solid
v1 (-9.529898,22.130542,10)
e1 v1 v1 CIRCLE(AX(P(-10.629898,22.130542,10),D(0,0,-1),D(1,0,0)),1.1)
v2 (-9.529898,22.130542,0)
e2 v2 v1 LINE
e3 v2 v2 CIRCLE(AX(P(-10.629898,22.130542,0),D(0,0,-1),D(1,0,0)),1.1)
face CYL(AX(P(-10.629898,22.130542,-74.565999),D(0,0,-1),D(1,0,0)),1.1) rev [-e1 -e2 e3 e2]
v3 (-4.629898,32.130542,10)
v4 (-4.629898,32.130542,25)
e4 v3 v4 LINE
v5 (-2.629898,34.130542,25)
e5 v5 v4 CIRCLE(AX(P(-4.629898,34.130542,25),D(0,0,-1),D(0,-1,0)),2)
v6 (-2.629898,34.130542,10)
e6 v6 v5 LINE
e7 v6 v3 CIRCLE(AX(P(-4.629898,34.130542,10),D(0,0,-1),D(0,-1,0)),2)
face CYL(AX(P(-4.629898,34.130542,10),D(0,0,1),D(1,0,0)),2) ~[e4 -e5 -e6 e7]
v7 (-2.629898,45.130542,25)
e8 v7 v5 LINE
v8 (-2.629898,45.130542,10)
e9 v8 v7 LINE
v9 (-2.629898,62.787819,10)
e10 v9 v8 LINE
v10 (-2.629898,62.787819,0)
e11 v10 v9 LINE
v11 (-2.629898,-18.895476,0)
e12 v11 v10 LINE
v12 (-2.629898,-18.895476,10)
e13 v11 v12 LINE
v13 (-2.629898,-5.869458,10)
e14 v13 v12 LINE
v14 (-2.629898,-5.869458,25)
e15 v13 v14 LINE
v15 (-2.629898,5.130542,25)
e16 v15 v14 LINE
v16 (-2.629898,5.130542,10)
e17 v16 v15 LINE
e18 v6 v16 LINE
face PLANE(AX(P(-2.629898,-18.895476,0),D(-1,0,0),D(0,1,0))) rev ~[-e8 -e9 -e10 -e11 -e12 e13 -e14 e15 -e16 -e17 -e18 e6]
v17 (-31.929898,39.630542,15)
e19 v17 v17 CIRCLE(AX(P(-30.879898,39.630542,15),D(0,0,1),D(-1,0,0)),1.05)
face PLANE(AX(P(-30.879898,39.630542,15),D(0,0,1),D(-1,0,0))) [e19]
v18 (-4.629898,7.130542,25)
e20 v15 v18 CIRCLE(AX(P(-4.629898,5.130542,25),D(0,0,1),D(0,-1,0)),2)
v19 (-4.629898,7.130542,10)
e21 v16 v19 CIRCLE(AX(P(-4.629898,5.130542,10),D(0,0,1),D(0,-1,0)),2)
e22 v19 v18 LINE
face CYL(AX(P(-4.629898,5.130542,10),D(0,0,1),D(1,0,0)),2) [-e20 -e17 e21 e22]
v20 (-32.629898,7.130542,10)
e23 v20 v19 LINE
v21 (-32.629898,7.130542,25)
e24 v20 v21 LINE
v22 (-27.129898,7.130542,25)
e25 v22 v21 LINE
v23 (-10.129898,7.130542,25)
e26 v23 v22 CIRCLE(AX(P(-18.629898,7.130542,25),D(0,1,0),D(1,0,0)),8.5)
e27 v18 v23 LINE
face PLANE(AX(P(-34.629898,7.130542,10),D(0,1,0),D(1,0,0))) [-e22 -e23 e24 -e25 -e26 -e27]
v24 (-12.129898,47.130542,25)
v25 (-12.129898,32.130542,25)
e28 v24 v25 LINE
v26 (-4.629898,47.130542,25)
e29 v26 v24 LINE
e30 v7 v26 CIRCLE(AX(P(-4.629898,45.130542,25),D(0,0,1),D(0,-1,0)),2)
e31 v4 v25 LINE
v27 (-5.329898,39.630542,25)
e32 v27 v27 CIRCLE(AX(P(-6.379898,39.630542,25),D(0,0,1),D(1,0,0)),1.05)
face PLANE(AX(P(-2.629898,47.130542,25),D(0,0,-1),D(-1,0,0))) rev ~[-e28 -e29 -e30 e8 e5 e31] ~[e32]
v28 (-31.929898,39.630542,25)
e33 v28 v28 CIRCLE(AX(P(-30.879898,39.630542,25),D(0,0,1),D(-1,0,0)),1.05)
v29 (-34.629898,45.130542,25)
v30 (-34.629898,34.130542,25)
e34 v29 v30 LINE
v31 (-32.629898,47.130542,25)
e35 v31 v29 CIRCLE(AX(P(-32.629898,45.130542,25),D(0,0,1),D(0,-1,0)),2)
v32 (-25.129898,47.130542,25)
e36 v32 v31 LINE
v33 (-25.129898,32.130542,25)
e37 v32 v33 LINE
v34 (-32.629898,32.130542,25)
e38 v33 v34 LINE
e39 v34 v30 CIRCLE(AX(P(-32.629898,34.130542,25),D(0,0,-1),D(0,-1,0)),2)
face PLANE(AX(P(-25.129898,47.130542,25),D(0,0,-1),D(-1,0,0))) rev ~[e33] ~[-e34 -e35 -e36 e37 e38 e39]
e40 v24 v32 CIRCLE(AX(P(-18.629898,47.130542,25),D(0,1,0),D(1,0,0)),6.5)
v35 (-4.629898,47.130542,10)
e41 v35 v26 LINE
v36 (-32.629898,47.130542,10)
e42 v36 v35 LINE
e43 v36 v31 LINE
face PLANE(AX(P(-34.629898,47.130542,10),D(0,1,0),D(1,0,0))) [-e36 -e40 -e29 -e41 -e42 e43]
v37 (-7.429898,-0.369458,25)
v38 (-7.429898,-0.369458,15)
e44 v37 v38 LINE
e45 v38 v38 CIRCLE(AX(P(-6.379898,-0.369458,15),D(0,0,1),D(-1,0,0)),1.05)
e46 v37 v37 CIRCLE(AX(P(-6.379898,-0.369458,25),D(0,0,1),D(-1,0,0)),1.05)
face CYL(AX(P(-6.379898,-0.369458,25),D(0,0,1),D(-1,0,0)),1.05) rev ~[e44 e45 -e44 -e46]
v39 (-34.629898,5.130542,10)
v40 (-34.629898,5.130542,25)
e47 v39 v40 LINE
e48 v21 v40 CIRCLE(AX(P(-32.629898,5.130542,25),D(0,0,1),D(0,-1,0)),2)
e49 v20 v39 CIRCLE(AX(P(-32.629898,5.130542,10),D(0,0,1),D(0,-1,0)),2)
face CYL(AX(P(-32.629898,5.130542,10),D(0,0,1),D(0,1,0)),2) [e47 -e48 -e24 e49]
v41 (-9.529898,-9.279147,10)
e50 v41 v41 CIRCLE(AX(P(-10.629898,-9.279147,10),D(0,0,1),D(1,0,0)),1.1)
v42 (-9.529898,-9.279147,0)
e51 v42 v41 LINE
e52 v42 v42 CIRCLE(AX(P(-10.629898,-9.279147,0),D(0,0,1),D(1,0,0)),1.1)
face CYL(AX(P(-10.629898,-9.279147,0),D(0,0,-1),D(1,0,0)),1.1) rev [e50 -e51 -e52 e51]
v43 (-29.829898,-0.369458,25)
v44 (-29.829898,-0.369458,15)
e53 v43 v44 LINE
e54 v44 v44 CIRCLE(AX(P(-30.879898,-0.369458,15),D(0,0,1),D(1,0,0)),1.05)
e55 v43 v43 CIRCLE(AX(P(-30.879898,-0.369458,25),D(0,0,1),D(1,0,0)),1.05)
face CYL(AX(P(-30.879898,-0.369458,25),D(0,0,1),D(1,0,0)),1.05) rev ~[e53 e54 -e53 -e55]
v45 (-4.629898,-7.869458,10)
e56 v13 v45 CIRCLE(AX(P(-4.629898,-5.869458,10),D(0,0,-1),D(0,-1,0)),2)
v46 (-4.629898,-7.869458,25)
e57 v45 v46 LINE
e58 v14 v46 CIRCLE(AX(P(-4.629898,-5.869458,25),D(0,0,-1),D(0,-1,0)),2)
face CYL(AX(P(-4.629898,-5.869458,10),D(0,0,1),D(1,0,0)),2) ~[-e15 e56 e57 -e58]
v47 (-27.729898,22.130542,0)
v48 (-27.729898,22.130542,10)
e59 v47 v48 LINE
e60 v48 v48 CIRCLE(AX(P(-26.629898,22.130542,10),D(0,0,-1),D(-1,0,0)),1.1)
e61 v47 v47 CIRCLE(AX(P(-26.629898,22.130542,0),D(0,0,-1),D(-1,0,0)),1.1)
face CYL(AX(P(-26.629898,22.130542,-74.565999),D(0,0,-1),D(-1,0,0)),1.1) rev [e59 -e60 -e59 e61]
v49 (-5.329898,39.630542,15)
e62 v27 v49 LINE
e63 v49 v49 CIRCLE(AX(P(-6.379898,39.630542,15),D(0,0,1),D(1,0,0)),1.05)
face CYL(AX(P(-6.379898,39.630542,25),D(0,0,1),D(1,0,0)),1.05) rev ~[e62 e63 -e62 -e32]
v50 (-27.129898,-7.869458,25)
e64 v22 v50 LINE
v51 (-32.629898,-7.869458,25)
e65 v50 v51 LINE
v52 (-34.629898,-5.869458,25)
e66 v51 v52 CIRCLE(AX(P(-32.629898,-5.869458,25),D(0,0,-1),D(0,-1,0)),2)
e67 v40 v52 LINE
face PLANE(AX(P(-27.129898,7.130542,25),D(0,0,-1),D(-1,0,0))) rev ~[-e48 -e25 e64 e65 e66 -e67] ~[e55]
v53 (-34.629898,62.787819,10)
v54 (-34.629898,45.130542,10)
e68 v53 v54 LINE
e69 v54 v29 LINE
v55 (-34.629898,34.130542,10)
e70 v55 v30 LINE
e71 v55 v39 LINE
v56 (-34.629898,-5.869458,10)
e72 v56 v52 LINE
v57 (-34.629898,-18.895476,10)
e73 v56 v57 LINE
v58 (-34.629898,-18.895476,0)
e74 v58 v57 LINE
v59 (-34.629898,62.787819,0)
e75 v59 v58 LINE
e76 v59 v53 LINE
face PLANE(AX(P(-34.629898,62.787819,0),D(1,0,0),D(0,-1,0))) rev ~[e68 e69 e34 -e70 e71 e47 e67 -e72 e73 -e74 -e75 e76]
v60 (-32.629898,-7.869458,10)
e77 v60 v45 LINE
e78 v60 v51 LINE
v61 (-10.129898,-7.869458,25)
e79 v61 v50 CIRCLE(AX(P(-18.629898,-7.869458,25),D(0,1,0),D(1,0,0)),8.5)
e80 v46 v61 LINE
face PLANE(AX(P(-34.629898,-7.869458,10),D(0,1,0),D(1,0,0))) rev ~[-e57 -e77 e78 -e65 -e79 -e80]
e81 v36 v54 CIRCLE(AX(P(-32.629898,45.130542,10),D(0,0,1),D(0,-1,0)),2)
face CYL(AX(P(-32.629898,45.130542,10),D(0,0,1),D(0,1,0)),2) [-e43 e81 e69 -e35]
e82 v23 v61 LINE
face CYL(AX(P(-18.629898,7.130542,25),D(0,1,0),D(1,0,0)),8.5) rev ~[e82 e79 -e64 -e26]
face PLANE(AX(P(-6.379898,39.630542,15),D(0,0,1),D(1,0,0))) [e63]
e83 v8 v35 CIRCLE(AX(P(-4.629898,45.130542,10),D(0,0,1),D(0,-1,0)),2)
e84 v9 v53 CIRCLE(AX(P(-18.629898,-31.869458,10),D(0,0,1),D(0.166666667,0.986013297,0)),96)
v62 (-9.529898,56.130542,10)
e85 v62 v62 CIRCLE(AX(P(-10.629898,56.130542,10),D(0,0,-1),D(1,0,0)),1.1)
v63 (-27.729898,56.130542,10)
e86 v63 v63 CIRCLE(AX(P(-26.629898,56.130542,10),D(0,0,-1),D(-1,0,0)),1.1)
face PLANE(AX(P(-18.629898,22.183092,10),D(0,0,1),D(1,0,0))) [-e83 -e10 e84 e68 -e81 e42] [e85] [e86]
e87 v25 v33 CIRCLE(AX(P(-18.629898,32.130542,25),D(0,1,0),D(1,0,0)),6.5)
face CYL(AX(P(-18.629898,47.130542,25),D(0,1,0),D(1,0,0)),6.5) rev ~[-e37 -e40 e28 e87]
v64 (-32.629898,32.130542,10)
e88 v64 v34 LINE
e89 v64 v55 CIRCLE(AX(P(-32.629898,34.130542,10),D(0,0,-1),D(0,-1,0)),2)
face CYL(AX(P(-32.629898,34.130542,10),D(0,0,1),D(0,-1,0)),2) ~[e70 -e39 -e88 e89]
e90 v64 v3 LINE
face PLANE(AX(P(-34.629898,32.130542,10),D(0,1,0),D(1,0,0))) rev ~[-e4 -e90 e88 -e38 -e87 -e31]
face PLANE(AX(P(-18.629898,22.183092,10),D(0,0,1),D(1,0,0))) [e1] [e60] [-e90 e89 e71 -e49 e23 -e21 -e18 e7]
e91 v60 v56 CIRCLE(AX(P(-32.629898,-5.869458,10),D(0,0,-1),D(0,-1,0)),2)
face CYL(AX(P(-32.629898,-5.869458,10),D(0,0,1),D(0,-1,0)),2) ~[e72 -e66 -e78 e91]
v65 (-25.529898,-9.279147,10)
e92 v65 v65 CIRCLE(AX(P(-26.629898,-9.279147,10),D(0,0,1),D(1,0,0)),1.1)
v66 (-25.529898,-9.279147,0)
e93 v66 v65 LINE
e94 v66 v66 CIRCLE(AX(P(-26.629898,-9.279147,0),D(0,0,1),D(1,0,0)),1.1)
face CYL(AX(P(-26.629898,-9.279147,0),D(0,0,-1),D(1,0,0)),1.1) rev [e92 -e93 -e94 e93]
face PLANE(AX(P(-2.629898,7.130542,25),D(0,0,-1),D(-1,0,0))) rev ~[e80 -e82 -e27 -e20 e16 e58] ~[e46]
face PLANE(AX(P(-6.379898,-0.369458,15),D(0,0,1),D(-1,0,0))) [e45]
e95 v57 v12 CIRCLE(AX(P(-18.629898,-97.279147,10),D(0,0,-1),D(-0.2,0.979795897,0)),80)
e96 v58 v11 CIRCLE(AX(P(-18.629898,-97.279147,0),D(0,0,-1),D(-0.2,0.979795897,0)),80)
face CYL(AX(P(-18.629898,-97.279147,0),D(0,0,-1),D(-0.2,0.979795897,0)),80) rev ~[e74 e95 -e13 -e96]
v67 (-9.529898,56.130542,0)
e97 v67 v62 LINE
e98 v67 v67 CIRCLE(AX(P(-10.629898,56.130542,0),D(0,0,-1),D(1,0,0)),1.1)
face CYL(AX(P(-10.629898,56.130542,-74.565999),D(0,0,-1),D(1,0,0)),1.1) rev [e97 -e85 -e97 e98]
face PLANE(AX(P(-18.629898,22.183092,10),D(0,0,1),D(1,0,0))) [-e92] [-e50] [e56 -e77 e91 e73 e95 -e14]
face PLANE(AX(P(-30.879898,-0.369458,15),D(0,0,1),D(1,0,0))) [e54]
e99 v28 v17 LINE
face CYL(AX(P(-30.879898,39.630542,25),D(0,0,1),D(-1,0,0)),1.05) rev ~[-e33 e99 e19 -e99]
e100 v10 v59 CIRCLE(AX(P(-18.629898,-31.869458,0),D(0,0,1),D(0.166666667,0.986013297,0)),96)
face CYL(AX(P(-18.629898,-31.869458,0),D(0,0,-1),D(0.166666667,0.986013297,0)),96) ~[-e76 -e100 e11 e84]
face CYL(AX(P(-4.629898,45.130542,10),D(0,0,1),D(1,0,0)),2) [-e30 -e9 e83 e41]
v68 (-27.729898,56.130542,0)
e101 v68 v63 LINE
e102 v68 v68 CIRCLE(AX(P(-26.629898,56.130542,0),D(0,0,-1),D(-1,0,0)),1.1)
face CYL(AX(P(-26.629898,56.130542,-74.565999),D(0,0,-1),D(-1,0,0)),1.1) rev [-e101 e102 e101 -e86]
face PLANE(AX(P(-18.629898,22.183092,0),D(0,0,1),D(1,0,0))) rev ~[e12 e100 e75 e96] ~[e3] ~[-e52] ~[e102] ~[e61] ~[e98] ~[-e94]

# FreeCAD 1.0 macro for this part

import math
import FreeCAD as App
import Part
import Sketcher
from FreeCAD import Vector


def edges_at(feature, points):
    """Names of the edges that pass closest to the given points."""
    edges = feature.Shape.Edges
    near = lambda p: min(range(len(edges)), key=lambda i: edges[i].distToShape(Part.Vertex(*p))[0])
    return sorted({f"Edge{near(p) + 1}" for p in points})

doc = App.newDocument("Part")
body = doc.addObject("PartDesign::Body", "Body")

sketch1 = doc.addObject("Sketcher::SketchObject", "Sketch")
body.addObject(sketch1)
sketch1.AttachmentSupport = (doc.XY_Plane, [""])
sketch1.MapMode = "FlatFace"
sketch1.addGeometry(Part.LineSegment(Vector(-2.629898, -18.895476, 0), Vector(-2.629898, 62.787819, 0)), False)
sketch1.addGeometry(Part.ArcOfCircle(Part.Circle(Vector(-18.629898, -31.869458, 0), Vector(0, 0, 1), 96), math.radians(80.405932), math.radians(99.594068)), False)
sketch1.addGeometry(Part.LineSegment(Vector(-34.629898, 62.787819, 0), Vector(-34.629898, -18.895476, 0)), False)
sketch1.addGeometry(Part.ArcOfCircle(Part.Circle(Vector(-18.629898, -97.279147, 0), Vector(0, 0, 1), 80), math.radians(78.463041), math.radians(101.536959)), False)
sketch1.addGeometry(Part.Circle(Vector(-10.629898, -9.279147, 0), Vector(0, 0, 1), 1.1), False)
sketch1.addGeometry(Part.Circle(Vector(-26.629898, -9.279147, 0), Vector(0, 0, 1), 1.1), False)
sketch1.addConstraint(Sketcher.Constraint("Coincident", 0, 2, 1, 1))
sketch1.addConstraint(Sketcher.Constraint("Coincident", 1, 2, 2, 1))
sketch1.addConstraint(Sketcher.Constraint("Coincident", 2, 2, 3, 2))
sketch1.addConstraint(Sketcher.Constraint("Coincident", 3, 1, 0, 1))
sketch1.addConstraint(Sketcher.Constraint("Vertical", 0))
sketch1.addConstraint(Sketcher.Constraint("Vertical", 2))
sketch1.addConstraint(Sketcher.Constraint("Equal", 4, 5))
sketch1.addConstraint(Sketcher.Constraint("Horizontal", 4, 3, 5, 3))
sketch1.addConstraint(Sketcher.Constraint("Horizontal", 0, 2, 1, 2))
sketch1.addConstraint(Sketcher.Constraint("Horizontal", 2, 2, 3, 1))
sketch1.addConstraint(Sketcher.Constraint("Radius", 1, 96.0))
sketch1.addConstraint(Sketcher.Constraint("Radius", 3, 80.0))
sketch1.addConstraint(Sketcher.Constraint("Diameter", 4, 2.2))
sketch1.addConstraint(Sketcher.Constraint("DistanceX", 1, 3, 4, 3, 8.0))
sketch1.addConstraint(Sketcher.Constraint("DistanceY", 3, 3, 4, 3, 88.0))
sketch1.addConstraint(Sketcher.Constraint("DistanceX", 5, 3, 4, 3, 16.0))
sketch1.addConstraint(Sketcher.Constraint("DistanceX", 4, 3, 0, 2, 8.0))
sketch1.addConstraint(Sketcher.Constraint("DistanceX", 1, 3, -1, 1, 18.629898))
sketch1.addConstraint(Sketcher.Constraint("DistanceY", 0, 1, 0, 2, 81.683294))
sketch1.addConstraint(Sketcher.Constraint("DistanceY", 1, 3, -1, 1, 31.869458))
pad1 = doc.addObject("PartDesign::Pad", "Pad")
body.addObject(pad1)
pad1.Profile = sketch1
pad1.Length = 10

sketch2 = doc.addObject("Sketcher::SketchObject", "Sketch001")
body.addObject(sketch2)
sketch2.AttachmentSupport = (doc.XY_Plane, [""])
sketch2.MapMode = "FlatFace"
sketch2.addGeometry(Part.Circle(Vector(-10.629898, 56.130542, 0), Vector(0, 0, 1), 1.1), False)
sketch2.addGeometry(Part.Circle(Vector(-26.629898, 56.130542, 0), Vector(0, 0, 1), 1.1), False)
sketch2.addGeometry(Part.Circle(Vector(-10.629898, 22.130542, 0), Vector(0, 0, 1), 1.1), False)
sketch2.addGeometry(Part.Circle(Vector(-26.629898, 22.130542, 0), Vector(0, 0, 1), 1.1), False)
sketch2.addConstraint(Sketcher.Constraint("Equal", 0, 1))
sketch2.addConstraint(Sketcher.Constraint("Equal", 1, 2))
sketch2.addConstraint(Sketcher.Constraint("Equal", 2, 3))
sketch2.addConstraint(Sketcher.Constraint("Horizontal", 0, 3, 1, 3))
sketch2.addConstraint(Sketcher.Constraint("Horizontal", 2, 3, 3, 3))
sketch2.addConstraint(Sketcher.Constraint("Vertical", 0, 3, 2, 3))
sketch2.addConstraint(Sketcher.Constraint("Vertical", 1, 3, 3, 3))
sketch2.addConstraint(Sketcher.Constraint("Diameter", 0, 2.2))
sketch2.addConstraint(Sketcher.Constraint("DistanceX", 1, 3, 0, 3, 16.0))
sketch2.addConstraint(Sketcher.Constraint("DistanceY", 2, 3, 0, 3, 34.0))
sketch2.addConstraint(Sketcher.Constraint("DistanceX", 0, 3, -1, 1, 10.629898))
sketch2.addConstraint(Sketcher.Constraint("DistanceY", -1, 1, 0, 3, 56.130542))
pocket1 = doc.addObject("PartDesign::Pocket", "Pocket")
body.addObject(pocket1)
pocket1.Profile = sketch2
pocket1.Type = "ThroughAll"
pocket1.Midplane = True

sketch3 = doc.addObject("Sketcher::SketchObject", "Sketch002")
body.addObject(sketch3)
sketch3.AttachmentSupport = (doc.XY_Plane, [""])
sketch3.MapMode = "FlatFace"
sketch3.AttachmentOffset = App.Placement(Vector(0, 0, 10), App.Rotation())
sketch3.addGeometry(Part.LineSegment(Vector(-34.629898, 7.130542, 0), Vector(-34.629898, -7.869458, 0)), False)
sketch3.addGeometry(Part.LineSegment(Vector(-34.629898, -7.869458, 0), Vector(-2.629898, -7.869458, 0)), False)
sketch3.addGeometry(Part.LineSegment(Vector(-2.629898, -7.869458, 0), Vector(-2.629898, 7.130542, 0)), False)
sketch3.addGeometry(Part.LineSegment(Vector(-2.629898, 7.130542, 0), Vector(-34.629898, 7.130542, 0)), False)
sketch3.addGeometry(Part.LineSegment(Vector(-34.629898, 47.130542, 0), Vector(-34.629898, 32.130542, 0)), False)
sketch3.addGeometry(Part.LineSegment(Vector(-34.629898, 32.130542, 0), Vector(-2.629898, 32.130542, 0)), False)
sketch3.addGeometry(Part.LineSegment(Vector(-2.629898, 32.130542, 0), Vector(-2.629898, 47.130542, 0)), False)
sketch3.addGeometry(Part.LineSegment(Vector(-2.629898, 47.130542, 0), Vector(-34.629898, 47.130542, 0)), False)
sketch3.addConstraint(Sketcher.Constraint("Coincident", 0, 2, 1, 1))
sketch3.addConstraint(Sketcher.Constraint("Coincident", 1, 2, 2, 1))
sketch3.addConstraint(Sketcher.Constraint("Coincident", 2, 2, 3, 1))
sketch3.addConstraint(Sketcher.Constraint("Coincident", 3, 2, 0, 1))
sketch3.addConstraint(Sketcher.Constraint("Coincident", 4, 2, 5, 1))
sketch3.addConstraint(Sketcher.Constraint("Coincident", 5, 2, 6, 1))
sketch3.addConstraint(Sketcher.Constraint("Coincident", 6, 2, 7, 1))
sketch3.addConstraint(Sketcher.Constraint("Coincident", 7, 2, 4, 1))
sketch3.addConstraint(Sketcher.Constraint("Vertical", 0))
sketch3.addConstraint(Sketcher.Constraint("Horizontal", 1))
sketch3.addConstraint(Sketcher.Constraint("Vertical", 2))
sketch3.addConstraint(Sketcher.Constraint("Horizontal", 3))
sketch3.addConstraint(Sketcher.Constraint("Vertical", 4))
sketch3.addConstraint(Sketcher.Constraint("Horizontal", 5))
sketch3.addConstraint(Sketcher.Constraint("Vertical", 6))
sketch3.addConstraint(Sketcher.Constraint("Horizontal", 7))
sketch3.addConstraint(Sketcher.Constraint("Vertical", 3, 2, 4, 2))
sketch3.addConstraint(Sketcher.Constraint("Vertical", 2, 2, 5, 2))
sketch3.addConstraint(Sketcher.Constraint("Equal", 2, 4))
sketch3.addConstraint(Sketcher.Constraint("DistanceX", 1, 1, 1, 2, 32.0))
sketch3.addConstraint(Sketcher.Constraint("DistanceY", 0, 2, 0, 1, 15.0))
sketch3.addConstraint(Sketcher.Constraint("DistanceY", 3, 2, 4, 2, 25.0))
sketch3.addConstraint(Sketcher.Constraint("DistanceX", 0, 2, -1, 1, 34.629898))
sketch3.addConstraint(Sketcher.Constraint("DistanceY", 0, 2, -1, 1, 7.869458))
pad2 = doc.addObject("PartDesign::Pad", "Pad001")
body.addObject(pad2)
pad2.Profile = sketch3
pad2.Length = 30

sketch4 = doc.addObject("Sketcher::SketchObject", "Sketch003")
body.addObject(sketch4)
sketch4.AttachmentSupport = (doc.XZ_Plane, [""])
sketch4.MapMode = "FlatFace"
sketch4.AttachmentOffset = App.Placement(Vector(0, 0, -47.130542), App.Rotation())
sketch4.addGeometry(Part.LineSegment(Vector(-2.629898, 40, 0), Vector(-2.629898, 25, 0)), False)
sketch4.addGeometry(Part.LineSegment(Vector(-2.629898, 25, 0), Vector(-12.129898, 25, 0)), False)
sketch4.addGeometry(Part.ArcOfCircle(Part.Circle(Vector(-18.629898, 25, 0), Vector(0, 0, 1), 6.5), math.radians(180), math.radians(360)), False)
sketch4.addGeometry(Part.LineSegment(Vector(-25.129898, 25, 0), Vector(-34.629898, 25, 0)), False)
sketch4.addGeometry(Part.LineSegment(Vector(-34.629898, 25, 0), Vector(-34.629898, 40, 0)), False)
sketch4.addGeometry(Part.LineSegment(Vector(-34.629898, 40, 0), Vector(-2.629898, 40, 0)), False)
sketch4.addConstraint(Sketcher.Constraint("Coincident", 0, 2, 1, 1))
sketch4.addConstraint(Sketcher.Constraint("Coincident", 1, 2, 2, 2))
sketch4.addConstraint(Sketcher.Constraint("Coincident", 2, 1, 3, 1))
sketch4.addConstraint(Sketcher.Constraint("Coincident", 3, 2, 4, 1))
sketch4.addConstraint(Sketcher.Constraint("Coincident", 4, 2, 5, 1))
sketch4.addConstraint(Sketcher.Constraint("Coincident", 5, 2, 0, 1))
sketch4.addConstraint(Sketcher.Constraint("Vertical", 0))
sketch4.addConstraint(Sketcher.Constraint("Horizontal", 1))
sketch4.addConstraint(Sketcher.Constraint("Horizontal", 3))
sketch4.addConstraint(Sketcher.Constraint("Vertical", 4))
sketch4.addConstraint(Sketcher.Constraint("Horizontal", 5))
sketch4.addConstraint(Sketcher.Constraint("Horizontal", 2, 3, 0, 2))
sketch4.addConstraint(Sketcher.Constraint("Horizontal", 1, 2, 2, 1))
sketch4.addConstraint(Sketcher.Constraint("Equal", 1, 3))
sketch4.addConstraint(Sketcher.Constraint("Radius", 2, 6.5))
sketch4.addConstraint(Sketcher.Constraint("DistanceX", 5, 1, 5, 2, 32.0))
sketch4.addConstraint(Sketcher.Constraint("DistanceY", 0, 2, 0, 1, 15.0))
sketch4.addConstraint(Sketcher.Constraint("DistanceY", -1, 1, 2, 3, 25.0))
sketch4.addConstraint(Sketcher.Constraint("DistanceX", 2, 3, -1, 1, 18.629898))
pocket2 = doc.addObject("PartDesign::Pocket", "Pocket001")
body.addObject(pocket2)
pocket2.Profile = sketch4
pocket2.Length = 16
pocket2.Reversed = True

sketch5 = doc.addObject("Sketcher::SketchObject", "Sketch004")
body.addObject(sketch5)
sketch5.AttachmentSupport = (doc.XZ_Plane, [""])
sketch5.MapMode = "FlatFace"
sketch5.AttachmentOffset = App.Placement(Vector(0, 0, -7.130542), App.Rotation())
sketch5.addGeometry(Part.LineSegment(Vector(-2.629898, 25, 0), Vector(-10.129898, 25, 0)), False)
sketch5.addGeometry(Part.ArcOfCircle(Part.Circle(Vector(-18.629898, 25, 0), Vector(0, 0, 1), 8.5), math.radians(180), math.radians(360)), False)
sketch5.addGeometry(Part.LineSegment(Vector(-27.129898, 25, 0), Vector(-34.629898, 25, 0)), False)
sketch5.addGeometry(Part.LineSegment(Vector(-34.629898, 25, 0), Vector(-34.629898, 40, 0)), False)
sketch5.addGeometry(Part.LineSegment(Vector(-34.629898, 40, 0), Vector(-2.629898, 40, 0)), False)
sketch5.addGeometry(Part.LineSegment(Vector(-2.629898, 40, 0), Vector(-2.629898, 25, 0)), False)
sketch5.addConstraint(Sketcher.Constraint("Coincident", 0, 2, 1, 2))
sketch5.addConstraint(Sketcher.Constraint("Coincident", 1, 1, 2, 1))
sketch5.addConstraint(Sketcher.Constraint("Coincident", 2, 2, 3, 1))
sketch5.addConstraint(Sketcher.Constraint("Coincident", 3, 2, 4, 1))
sketch5.addConstraint(Sketcher.Constraint("Coincident", 4, 2, 5, 1))
sketch5.addConstraint(Sketcher.Constraint("Coincident", 5, 2, 0, 1))
sketch5.addConstraint(Sketcher.Constraint("Horizontal", 0))
sketch5.addConstraint(Sketcher.Constraint("Horizontal", 2))
sketch5.addConstraint(Sketcher.Constraint("Vertical", 3))
sketch5.addConstraint(Sketcher.Constraint("Horizontal", 4))
sketch5.addConstraint(Sketcher.Constraint("Vertical", 5))
sketch5.addConstraint(Sketcher.Constraint("Horizontal", 1, 3, 0, 2))
sketch5.addConstraint(Sketcher.Constraint("Horizontal", 0, 2, 1, 1))
sketch5.addConstraint(Sketcher.Constraint("Equal", 0, 2))
sketch5.addConstraint(Sketcher.Constraint("Radius", 1, 8.5))
sketch5.addConstraint(Sketcher.Constraint("DistanceX", 4, 1, 4, 2, 32.0))
sketch5.addConstraint(Sketcher.Constraint("DistanceY", 3, 1, 3, 2, 15.0))
sketch5.addConstraint(Sketcher.Constraint("DistanceY", -1, 1, 1, 3, 25.0))
sketch5.addConstraint(Sketcher.Constraint("DistanceX", 1, 3, -1, 1, 18.629898))
pocket3 = doc.addObject("PartDesign::Pocket", "Pocket002")
body.addObject(pocket3)
pocket3.Profile = sketch5
pocket3.Length = 22
pocket3.Reversed = True

sketch6 = doc.addObject("Sketcher::SketchObject", "Sketch005")
body.addObject(sketch6)
sketch6.AttachmentSupport = (doc.XY_Plane, [""])
sketch6.MapMode = "FlatFace"
sketch6.AttachmentOffset = App.Placement(Vector(0, 0, 25), App.Rotation())
sketch6.addGeometry(Part.Circle(Vector(-30.879898, -0.369458, 0), Vector(0, 0, 1), 1.05), False)
sketch6.addGeometry(Part.Circle(Vector(-30.879898, 39.630542, 0), Vector(0, 0, 1), 1.05), False)
sketch6.addGeometry(Part.Circle(Vector(-6.379898, -0.369458, 0), Vector(0, 0, 1), 1.05), False)
sketch6.addGeometry(Part.Circle(Vector(-6.379898, 39.630542, 0), Vector(0, 0, 1), 1.05), False)
sketch6.addConstraint(Sketcher.Constraint("Equal", 0, 1))
sketch6.addConstraint(Sketcher.Constraint("Equal", 1, 2))
sketch6.addConstraint(Sketcher.Constraint("Equal", 2, 3))
sketch6.addConstraint(Sketcher.Constraint("Horizontal", 0, 3, 2, 3))
sketch6.addConstraint(Sketcher.Constraint("Horizontal", 1, 3, 3, 3))
sketch6.addConstraint(Sketcher.Constraint("Vertical", 0, 3, 1, 3))
sketch6.addConstraint(Sketcher.Constraint("Vertical", 2, 3, 3, 3))
sketch6.addConstraint(Sketcher.Constraint("Diameter", 0, 2.1))
sketch6.addConstraint(Sketcher.Constraint("DistanceY", 0, 3, 1, 3, 40.0))
sketch6.addConstraint(Sketcher.Constraint("DistanceX", 0, 3, 2, 3, 24.5))
sketch6.addConstraint(Sketcher.Constraint("DistanceX", 0, 3, -1, 1, 30.879898))
sketch6.addConstraint(Sketcher.Constraint("DistanceY", 0, 3, -1, 1, 0.369458))
pocket4 = doc.addObject("PartDesign::Pocket", "Pocket003")
body.addObject(pocket4)
pocket4.Profile = sketch6
pocket4.Length = 10
doc.recompute()

fillet = doc.addObject("PartDesign::Fillet", "Fillet")
body.addObject(fillet)
fillet.Base = (pocket4, edges_at(pocket4, [
    (-34.63, 7.131, 17.5),
    (-2.63, 7.131, 17.5),
    (-2.63, -7.869, 17.5),
    (-34.63, -7.869, 17.5),
    (-2.63, 32.131, 17.5),
    (-34.63, 32.131, 17.5),
    (-34.63, 47.131, 17.5),
    (-2.63, 47.131, 17.5),
]))
fillet.Radius = 2

doc.recompute()
